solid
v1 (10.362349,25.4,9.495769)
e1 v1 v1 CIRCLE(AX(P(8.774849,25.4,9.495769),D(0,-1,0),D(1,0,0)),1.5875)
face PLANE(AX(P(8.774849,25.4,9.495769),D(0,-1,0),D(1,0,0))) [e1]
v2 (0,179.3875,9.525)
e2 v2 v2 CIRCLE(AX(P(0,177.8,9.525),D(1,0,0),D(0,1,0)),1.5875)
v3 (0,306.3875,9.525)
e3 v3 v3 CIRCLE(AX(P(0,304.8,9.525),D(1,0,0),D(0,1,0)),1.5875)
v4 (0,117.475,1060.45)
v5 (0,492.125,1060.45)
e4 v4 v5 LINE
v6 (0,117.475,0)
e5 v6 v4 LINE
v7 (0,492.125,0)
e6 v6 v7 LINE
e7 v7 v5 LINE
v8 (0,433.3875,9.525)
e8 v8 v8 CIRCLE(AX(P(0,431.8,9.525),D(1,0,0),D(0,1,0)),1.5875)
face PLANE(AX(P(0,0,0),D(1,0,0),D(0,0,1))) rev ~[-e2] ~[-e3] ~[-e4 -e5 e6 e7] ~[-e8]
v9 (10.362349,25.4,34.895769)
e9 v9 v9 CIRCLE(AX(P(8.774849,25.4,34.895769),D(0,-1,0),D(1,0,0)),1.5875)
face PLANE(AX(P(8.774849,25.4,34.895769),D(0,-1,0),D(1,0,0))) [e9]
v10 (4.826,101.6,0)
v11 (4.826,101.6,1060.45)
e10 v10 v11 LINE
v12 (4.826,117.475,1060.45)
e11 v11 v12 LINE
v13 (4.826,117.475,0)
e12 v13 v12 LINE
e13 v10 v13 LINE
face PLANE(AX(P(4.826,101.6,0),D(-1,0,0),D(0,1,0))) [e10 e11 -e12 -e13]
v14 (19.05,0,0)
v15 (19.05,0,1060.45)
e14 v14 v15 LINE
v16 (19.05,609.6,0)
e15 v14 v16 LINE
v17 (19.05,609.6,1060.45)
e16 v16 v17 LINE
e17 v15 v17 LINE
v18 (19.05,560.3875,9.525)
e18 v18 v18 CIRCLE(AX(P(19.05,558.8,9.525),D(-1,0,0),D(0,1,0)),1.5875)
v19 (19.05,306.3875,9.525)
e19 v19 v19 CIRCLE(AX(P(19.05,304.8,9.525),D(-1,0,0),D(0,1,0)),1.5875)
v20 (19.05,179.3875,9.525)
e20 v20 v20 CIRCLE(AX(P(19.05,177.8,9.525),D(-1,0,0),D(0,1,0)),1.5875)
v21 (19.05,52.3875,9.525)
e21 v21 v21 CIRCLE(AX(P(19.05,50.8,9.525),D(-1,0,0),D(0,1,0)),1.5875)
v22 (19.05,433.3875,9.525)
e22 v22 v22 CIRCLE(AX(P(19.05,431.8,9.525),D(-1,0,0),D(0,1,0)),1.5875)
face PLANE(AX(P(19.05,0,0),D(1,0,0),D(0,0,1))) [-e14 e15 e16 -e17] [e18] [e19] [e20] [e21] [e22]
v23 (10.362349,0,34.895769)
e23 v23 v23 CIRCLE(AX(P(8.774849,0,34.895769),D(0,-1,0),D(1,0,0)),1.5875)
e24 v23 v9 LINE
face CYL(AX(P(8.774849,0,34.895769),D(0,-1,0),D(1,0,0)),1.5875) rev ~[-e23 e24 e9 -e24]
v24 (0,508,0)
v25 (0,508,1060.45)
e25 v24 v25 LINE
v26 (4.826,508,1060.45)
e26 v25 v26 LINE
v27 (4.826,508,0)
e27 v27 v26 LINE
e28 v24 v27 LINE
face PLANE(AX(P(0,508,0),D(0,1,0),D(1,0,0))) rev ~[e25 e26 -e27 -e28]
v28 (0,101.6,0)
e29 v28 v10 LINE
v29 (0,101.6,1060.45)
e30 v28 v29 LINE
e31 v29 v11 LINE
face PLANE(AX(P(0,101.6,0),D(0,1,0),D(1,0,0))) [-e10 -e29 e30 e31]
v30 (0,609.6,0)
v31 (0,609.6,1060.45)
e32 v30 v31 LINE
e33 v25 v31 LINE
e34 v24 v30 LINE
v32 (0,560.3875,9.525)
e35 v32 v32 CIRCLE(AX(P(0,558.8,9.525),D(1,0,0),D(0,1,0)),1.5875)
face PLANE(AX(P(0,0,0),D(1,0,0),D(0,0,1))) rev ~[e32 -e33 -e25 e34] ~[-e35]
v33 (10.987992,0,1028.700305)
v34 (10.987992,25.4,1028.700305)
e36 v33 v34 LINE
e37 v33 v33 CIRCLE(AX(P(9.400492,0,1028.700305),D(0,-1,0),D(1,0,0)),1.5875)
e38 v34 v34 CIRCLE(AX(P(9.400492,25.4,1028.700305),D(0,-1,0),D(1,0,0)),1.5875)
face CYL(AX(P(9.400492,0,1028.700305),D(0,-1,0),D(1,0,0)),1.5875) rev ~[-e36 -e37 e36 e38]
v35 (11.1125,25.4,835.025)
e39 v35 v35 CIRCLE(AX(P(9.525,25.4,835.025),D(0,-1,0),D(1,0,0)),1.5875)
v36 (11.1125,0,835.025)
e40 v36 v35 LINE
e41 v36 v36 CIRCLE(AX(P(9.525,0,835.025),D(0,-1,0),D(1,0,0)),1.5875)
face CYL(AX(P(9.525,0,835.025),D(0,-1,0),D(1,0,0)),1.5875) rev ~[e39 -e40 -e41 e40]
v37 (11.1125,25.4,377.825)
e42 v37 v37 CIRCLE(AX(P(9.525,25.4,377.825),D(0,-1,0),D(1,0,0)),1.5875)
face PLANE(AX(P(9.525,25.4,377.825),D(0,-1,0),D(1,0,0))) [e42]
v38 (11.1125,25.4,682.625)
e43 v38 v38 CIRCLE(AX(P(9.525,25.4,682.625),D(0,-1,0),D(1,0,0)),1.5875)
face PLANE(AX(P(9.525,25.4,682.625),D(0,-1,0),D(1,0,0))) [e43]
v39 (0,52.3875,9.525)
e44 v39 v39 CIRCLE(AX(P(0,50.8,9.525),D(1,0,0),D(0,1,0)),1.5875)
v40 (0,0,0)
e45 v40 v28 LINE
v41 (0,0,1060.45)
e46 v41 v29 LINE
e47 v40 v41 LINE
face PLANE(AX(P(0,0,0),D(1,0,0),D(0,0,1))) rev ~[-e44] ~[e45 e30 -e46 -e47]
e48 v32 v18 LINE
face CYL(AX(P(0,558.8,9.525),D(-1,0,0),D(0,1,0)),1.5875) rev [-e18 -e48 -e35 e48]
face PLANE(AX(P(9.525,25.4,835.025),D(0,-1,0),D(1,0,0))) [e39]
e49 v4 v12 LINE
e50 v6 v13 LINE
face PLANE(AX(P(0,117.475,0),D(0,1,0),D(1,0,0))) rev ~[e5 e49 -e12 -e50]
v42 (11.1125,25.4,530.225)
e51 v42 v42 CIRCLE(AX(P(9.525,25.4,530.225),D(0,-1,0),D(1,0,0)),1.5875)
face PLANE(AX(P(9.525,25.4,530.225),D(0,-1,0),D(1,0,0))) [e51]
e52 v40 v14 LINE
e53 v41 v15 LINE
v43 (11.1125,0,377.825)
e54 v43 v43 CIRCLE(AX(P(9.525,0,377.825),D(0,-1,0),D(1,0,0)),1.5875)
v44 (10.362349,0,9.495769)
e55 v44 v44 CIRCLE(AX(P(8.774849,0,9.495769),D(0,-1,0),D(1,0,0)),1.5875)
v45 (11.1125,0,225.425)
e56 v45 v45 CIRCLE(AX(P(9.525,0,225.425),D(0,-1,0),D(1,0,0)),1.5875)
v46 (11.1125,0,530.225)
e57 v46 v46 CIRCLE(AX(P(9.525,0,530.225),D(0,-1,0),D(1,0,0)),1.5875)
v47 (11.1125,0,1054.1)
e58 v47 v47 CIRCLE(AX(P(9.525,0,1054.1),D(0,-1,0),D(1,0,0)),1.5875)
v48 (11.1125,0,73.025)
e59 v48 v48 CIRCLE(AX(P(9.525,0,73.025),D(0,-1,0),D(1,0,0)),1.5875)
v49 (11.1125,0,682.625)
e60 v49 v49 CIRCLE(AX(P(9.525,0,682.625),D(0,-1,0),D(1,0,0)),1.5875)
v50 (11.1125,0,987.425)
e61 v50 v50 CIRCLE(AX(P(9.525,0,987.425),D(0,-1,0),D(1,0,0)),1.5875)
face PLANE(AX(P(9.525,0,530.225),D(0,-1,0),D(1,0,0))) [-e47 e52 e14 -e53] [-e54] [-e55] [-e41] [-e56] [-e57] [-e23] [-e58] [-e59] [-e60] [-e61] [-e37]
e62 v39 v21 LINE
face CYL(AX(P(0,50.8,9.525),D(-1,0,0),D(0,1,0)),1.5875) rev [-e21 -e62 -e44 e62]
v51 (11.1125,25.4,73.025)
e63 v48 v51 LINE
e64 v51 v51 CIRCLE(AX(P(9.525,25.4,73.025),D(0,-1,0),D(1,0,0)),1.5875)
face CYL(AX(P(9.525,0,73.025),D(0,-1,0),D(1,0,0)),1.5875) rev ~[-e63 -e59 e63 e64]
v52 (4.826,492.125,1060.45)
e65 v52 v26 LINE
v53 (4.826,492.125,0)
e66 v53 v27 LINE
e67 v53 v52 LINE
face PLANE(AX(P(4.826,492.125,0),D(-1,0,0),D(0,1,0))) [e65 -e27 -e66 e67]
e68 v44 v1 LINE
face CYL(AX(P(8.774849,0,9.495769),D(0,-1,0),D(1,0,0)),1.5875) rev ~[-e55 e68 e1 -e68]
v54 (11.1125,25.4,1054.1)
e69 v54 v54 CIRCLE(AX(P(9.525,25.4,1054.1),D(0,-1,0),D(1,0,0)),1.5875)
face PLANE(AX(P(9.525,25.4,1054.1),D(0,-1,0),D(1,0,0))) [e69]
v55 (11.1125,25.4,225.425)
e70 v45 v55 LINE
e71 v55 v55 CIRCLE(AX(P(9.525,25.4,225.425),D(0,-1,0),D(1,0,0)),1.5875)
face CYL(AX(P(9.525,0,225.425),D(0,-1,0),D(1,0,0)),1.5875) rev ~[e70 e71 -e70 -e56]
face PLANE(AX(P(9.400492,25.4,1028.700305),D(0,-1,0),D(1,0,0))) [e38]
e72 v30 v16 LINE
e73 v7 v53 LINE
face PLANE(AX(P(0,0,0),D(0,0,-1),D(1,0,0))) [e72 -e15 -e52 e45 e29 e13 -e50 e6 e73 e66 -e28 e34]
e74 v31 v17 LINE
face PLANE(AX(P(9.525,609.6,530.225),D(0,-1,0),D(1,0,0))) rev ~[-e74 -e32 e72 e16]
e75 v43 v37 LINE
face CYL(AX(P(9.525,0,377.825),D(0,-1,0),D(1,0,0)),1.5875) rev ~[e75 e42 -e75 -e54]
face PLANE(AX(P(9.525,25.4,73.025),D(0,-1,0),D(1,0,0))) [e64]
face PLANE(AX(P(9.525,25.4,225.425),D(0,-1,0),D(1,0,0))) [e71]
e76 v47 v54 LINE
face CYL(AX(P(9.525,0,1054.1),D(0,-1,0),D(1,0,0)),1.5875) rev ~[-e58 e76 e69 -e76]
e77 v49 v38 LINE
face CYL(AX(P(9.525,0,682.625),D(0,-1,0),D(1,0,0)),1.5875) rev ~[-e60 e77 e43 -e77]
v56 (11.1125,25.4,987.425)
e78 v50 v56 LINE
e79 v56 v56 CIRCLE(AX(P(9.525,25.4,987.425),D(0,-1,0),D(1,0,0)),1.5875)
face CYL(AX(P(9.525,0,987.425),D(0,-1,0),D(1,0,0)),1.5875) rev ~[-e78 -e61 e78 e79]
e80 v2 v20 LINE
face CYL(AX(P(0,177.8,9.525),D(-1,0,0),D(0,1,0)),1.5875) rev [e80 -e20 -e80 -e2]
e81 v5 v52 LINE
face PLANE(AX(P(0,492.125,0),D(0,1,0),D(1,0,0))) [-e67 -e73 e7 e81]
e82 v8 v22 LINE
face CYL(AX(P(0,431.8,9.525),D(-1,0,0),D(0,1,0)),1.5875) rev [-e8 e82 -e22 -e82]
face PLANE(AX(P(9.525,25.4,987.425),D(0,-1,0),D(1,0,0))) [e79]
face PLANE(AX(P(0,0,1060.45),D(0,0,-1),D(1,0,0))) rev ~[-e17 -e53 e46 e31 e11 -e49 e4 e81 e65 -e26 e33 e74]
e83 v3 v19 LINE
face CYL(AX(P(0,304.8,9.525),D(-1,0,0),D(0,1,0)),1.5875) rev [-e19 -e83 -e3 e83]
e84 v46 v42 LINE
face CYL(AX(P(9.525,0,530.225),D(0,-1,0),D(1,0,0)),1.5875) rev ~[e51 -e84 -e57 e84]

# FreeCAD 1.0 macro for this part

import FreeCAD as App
import Part
import Sketcher
from FreeCAD import Vector
Q = App.Units.Quantity


def add_polygon(sketch, points):
    """Adds a closed chain of lines whose ends are joined by coincident constraints."""
    first, n = sketch.GeometryCount, len(points)
    for a, b in zip(points, points[1:] + points[:1]):
        sketch.addGeometry(Part.LineSegment(App.Vector(*a, 0), App.Vector(*b, 0)), False)
    for i in range(n):
        sketch.addConstraint(Sketcher.Constraint("Coincident", first + i, 2, first + (i + 1) % n, 1))

doc = App.newDocument("Part")
body = doc.addObject("PartDesign::Body", "Body")

sketch1 = body.newObject("Sketcher::SketchObject", "Sketch")
sketch1.AttachmentSupport = (doc.getObject("XZ_Plane"), [""])
sketch1.MapMode = "FlatFace"
add_polygon(sketch1, [(0, 1060.45), (0, 0), (19.05, 0), (19.05, 1060.45)])
sketch1.addConstraint([
    Sketcher.Constraint("Vertical", 0),
    Sketcher.Constraint("Horizontal", 1),
    Sketcher.Constraint("Vertical", 2),
    Sketcher.Constraint("Horizontal", 3),
    Sketcher.Constraint("Coincident", 0, 2, -1, 1),
    Sketcher.Constraint("DistanceX", 1, 1, 1, 2, Q("0.75 in")),
    Sketcher.Constraint("DistanceY", 0, 2, 0, 1, Q("41.75 in")),
])
pad1 = body.newObject("PartDesign::Pad", "Pad")
pad1.Profile = sketch1
pad1.Length = Q("24 in")
pad1.Reversed = True

sketch2 = body.newObject("Sketcher::SketchObject", "Sketch001")
sketch2.AttachmentSupport = (doc.getObject("YZ_Plane"), [""])
sketch2.MapMode = "FlatFace"
sketch2.addGeometry([
    Part.Circle(Vector(50.8, 9.525, 0), Vector(0, 0, 1), 1.5875),
    Part.Circle(Vector(177.8, 9.525, 0), Vector(0, 0, 1), 1.5875),
    Part.Circle(Vector(304.8, 9.525, 0), Vector(0, 0, 1), 1.5875),
    Part.Circle(Vector(431.8, 9.525, 0), Vector(0, 0, 1), 1.5875),
    Part.Circle(Vector(558.8, 9.525, 0), Vector(0, 0, 1), 1.5875),
], False)
sketch2.addConstraint([
    Sketcher.Constraint("Equal", 0, 1),
    Sketcher.Constraint("Equal", 1, 2),
    Sketcher.Constraint("Equal", 2, 3),
    Sketcher.Constraint("Equal", 3, 4),
    Sketcher.Constraint("Horizontal", 0, 3, 1, 3),
    Sketcher.Constraint("Horizontal", 1, 3, 2, 3),
    Sketcher.Constraint("Horizontal", 2, 3, 3, 3),
    Sketcher.Constraint("Horizontal", 3, 3, 4, 3),
    Sketcher.Constraint("Diameter", 0, Q("0.125 in")),
    Sketcher.Constraint("DistanceX", -1, 1, 0, 3, Q("2 in")),
    Sketcher.Constraint("DistanceX", -1, 1, 1, 3, Q("7 in")),
    Sketcher.Constraint("DistanceX", -1, 1, 2, 3, Q("12 in")),
    Sketcher.Constraint("DistanceX", -1, 1, 3, 3, Q("17 in")),
    Sketcher.Constraint("DistanceX", -1, 1, 4, 3, Q("22 in")),
    Sketcher.Constraint("DistanceY", -1, 1, 0, 3, Q("0.375 in")),
])
pocket1 = body.newObject("PartDesign::Pocket", "Pocket")
pocket1.Profile = sketch2
pocket1.Type = "ThroughAll"
pocket1.Reversed = True

sketch3 = body.newObject("Sketcher::SketchObject", "Sketch002")
sketch3.AttachmentSupport = (doc.getObject("XZ_Plane"), [""])
sketch3.MapMode = "FlatFace"
sketch3.addGeometry([
    Part.Circle(Vector(9.525, 1054.1, 0), Vector(0, 0, 1), 1.5875),
    Part.Circle(Vector(9.400492, 1028.700305, 0), Vector(0, 0, 1), 1.5875),
], False)
sketch3.addConstraint([
    Sketcher.Constraint("Equal", 0, 1),
    Sketcher.Constraint("Diameter", 0, Q("0.125 in")),
    Sketcher.Constraint("DistanceY", -1, 1, 0, 3, Q("41.5 in")),
    Sketcher.Constraint("DistanceX", -1, 1, 0, 3, Q("0.375 in")),
    Sketcher.Constraint("DistanceX", 1, 3, 0, 3, Q("0.124508 mm")),
    Sketcher.Constraint("DistanceY", -1, 1, 1, 3, Q("1028.700305 mm")),
])
pocket2 = body.newObject("PartDesign::Pocket", "Pocket001")
pocket2.Profile = sketch3
pocket2.Length = Q("1 in")

sketch4 = body.newObject("Sketcher::SketchObject", "Sketch003")
sketch4.AttachmentSupport = (doc.getObject("XZ_Plane"), [""])
sketch4.MapMode = "FlatFace"
sketch4.addGeometry([
    Part.Circle(Vector(8.774849, 9.495769, 0), Vector(0, 0, 1), 1.5875),
    Part.Circle(Vector(8.774849, 34.895769, 0), Vector(0, 0, 1), 1.5875),
], False)
sketch4.addConstraint([
    Sketcher.Constraint("Equal", 0, 1),
    Sketcher.Constraint("Vertical", 0, 3, 1, 3),
    Sketcher.Constraint("Diameter", 0, Q("0.125 in")),
    Sketcher.Constraint("DistanceY", 0, 3, 1, 3, Q("1 in")),
    Sketcher.Constraint("DistanceX", -1, 1, 0, 3, Q("8.774849 mm")),
    Sketcher.Constraint("DistanceY", -1, 1, 0, 3, Q("9.495769 mm")),
])
pocket3 = body.newObject("PartDesign::Pocket", "Pocket002")
pocket3.Profile = sketch4
pocket3.Length = Q("1 in")

sketch5 = body.newObject("Sketcher::SketchObject", "Sketch004")
sketch5.AttachmentSupport = (doc.getObject("XZ_Plane"), [""])
sketch5.MapMode = "FlatFace"
sketch5.addGeometry([
    Part.Circle(Vector(9.525, 987.425, 0), Vector(0, 0, 1), 1.5875),
    Part.Circle(Vector(9.525, 835.025, 0), Vector(0, 0, 1), 1.5875),
    Part.Circle(Vector(9.525, 682.625, 0), Vector(0, 0, 1), 1.5875),
    Part.Circle(Vector(9.525, 530.225, 0), Vector(0, 0, 1), 1.5875),
    Part.Circle(Vector(9.525, 377.825, 0), Vector(0, 0, 1), 1.5875),
    Part.Circle(Vector(9.525, 225.425, 0), Vector(0, 0, 1), 1.5875),
    Part.Circle(Vector(9.525, 73.025, 0), Vector(0, 0, 1), 1.5875),
], False)
sketch5.addConstraint([
    Sketcher.Constraint("Equal", 0, 1),
    Sketcher.Constraint("Equal", 1, 2),
    Sketcher.Constraint("Equal", 2, 3),
    Sketcher.Constraint("Equal", 3, 4),
    Sketcher.Constraint("Equal", 4, 5),
    Sketcher.Constraint("Equal", 5, 6),
    Sketcher.Constraint("Vertical", 0, 3, 1, 3),
    Sketcher.Constraint("Vertical", 1, 3, 2, 3),
    Sketcher.Constraint("Vertical", 2, 3, 3, 3),
    Sketcher.Constraint("Vertical", 3, 3, 4, 3),
    Sketcher.Constraint("Vertical", 4, 3, 5, 3),
    Sketcher.Constraint("Vertical", 5, 3, 6, 3),
    Sketcher.Constraint("Diameter", 0, Q("0.125 in")),
    Sketcher.Constraint("DistanceY", 1, 3, 0, 3, Q("6 in")),
    Sketcher.Constraint("DistanceY", 2, 3, 1, 3, Q("6 in")),
    Sketcher.Constraint("DistanceY", 3, 3, 2, 3, Q("6 in")),
    Sketcher.Constraint("DistanceY", 4, 3, 3, 3, Q("6 in")),
    Sketcher.Constraint("DistanceY", 5, 3, 4, 3, Q("6 in")),
    Sketcher.Constraint("DistanceY", 6, 3, 5, 3, Q("6 in")),
    Sketcher.Constraint("DistanceX", -1, 1, 0, 3, Q("0.375 in")),
    Sketcher.Constraint("DistanceY", -1, 1, 0, 3, Q("38.875 in")),
])
pocket4 = body.newObject("PartDesign::Pocket", "Pocket003")
pocket4.Profile = sketch5
pocket4.Length = Q("1 in")

sketch6 = body.newObject("Sketcher::SketchObject", "Sketch005")
sketch6.AttachmentSupport = (doc.getObject("XY_Plane"), [""])
sketch6.MapMode = "FlatFace"
add_polygon(sketch6, [(0, 117.475), (0, 101.6), (4.826, 101.6), (4.826, 117.475)])
sketch6.addConstraint([
    Sketcher.Constraint("Vertical", 0),
    Sketcher.Constraint("Horizontal", 1),
    Sketcher.Constraint("Vertical", 2),
    Sketcher.Constraint("Horizontal", 3),
    Sketcher.Constraint("PointOnObject", 0, 2, -2),
    Sketcher.Constraint("DistanceY", -1, 1, 0, 2, Q("4 in")),
    Sketcher.Constraint("DistanceX", 1, 1, 1, 2, Q("0.19 in")),
    Sketcher.Constraint("DistanceY", 0, 2, 0, 1, Q("0.625 in")),
])
pocket5 = body.newObject("PartDesign::Pocket", "Pocket004")
pocket5.Profile = sketch6
pocket5.Type = "ThroughAll"
pocket5.Reversed = True

sketch7 = body.newObject("Sketcher::SketchObject", "Sketch006")
sketch7.AttachmentSupport = (doc.getObject("XY_Plane"), [""])
sketch7.MapMode = "FlatFace"
add_polygon(sketch7, [(0, 508), (0, 492.125), (4.826, 492.125), (4.826, 508)])
sketch7.addConstraint([
    Sketcher.Constraint("Vertical", 0),
    Sketcher.Constraint("Horizontal", 1),
    Sketcher.Constraint("Vertical", 2),
    Sketcher.Constraint("Horizontal", 3),
    Sketcher.Constraint("PointOnObject", 0, 2, -2),
    Sketcher.Constraint("DistanceY", -1, 1, 2, 2, Q("20 in")),
    Sketcher.Constraint("DistanceX", 1, 1, 1, 2, Q("0.19 in")),
    Sketcher.Constraint("DistanceY", 0, 2, 0, 1, Q("0.625 in")),
])
pocket6 = body.newObject("PartDesign::Pocket", "Pocket005")
pocket6.Profile = sketch7
pocket6.Type = "ThroughAll"
pocket6.Reversed = True

doc.recompute()
